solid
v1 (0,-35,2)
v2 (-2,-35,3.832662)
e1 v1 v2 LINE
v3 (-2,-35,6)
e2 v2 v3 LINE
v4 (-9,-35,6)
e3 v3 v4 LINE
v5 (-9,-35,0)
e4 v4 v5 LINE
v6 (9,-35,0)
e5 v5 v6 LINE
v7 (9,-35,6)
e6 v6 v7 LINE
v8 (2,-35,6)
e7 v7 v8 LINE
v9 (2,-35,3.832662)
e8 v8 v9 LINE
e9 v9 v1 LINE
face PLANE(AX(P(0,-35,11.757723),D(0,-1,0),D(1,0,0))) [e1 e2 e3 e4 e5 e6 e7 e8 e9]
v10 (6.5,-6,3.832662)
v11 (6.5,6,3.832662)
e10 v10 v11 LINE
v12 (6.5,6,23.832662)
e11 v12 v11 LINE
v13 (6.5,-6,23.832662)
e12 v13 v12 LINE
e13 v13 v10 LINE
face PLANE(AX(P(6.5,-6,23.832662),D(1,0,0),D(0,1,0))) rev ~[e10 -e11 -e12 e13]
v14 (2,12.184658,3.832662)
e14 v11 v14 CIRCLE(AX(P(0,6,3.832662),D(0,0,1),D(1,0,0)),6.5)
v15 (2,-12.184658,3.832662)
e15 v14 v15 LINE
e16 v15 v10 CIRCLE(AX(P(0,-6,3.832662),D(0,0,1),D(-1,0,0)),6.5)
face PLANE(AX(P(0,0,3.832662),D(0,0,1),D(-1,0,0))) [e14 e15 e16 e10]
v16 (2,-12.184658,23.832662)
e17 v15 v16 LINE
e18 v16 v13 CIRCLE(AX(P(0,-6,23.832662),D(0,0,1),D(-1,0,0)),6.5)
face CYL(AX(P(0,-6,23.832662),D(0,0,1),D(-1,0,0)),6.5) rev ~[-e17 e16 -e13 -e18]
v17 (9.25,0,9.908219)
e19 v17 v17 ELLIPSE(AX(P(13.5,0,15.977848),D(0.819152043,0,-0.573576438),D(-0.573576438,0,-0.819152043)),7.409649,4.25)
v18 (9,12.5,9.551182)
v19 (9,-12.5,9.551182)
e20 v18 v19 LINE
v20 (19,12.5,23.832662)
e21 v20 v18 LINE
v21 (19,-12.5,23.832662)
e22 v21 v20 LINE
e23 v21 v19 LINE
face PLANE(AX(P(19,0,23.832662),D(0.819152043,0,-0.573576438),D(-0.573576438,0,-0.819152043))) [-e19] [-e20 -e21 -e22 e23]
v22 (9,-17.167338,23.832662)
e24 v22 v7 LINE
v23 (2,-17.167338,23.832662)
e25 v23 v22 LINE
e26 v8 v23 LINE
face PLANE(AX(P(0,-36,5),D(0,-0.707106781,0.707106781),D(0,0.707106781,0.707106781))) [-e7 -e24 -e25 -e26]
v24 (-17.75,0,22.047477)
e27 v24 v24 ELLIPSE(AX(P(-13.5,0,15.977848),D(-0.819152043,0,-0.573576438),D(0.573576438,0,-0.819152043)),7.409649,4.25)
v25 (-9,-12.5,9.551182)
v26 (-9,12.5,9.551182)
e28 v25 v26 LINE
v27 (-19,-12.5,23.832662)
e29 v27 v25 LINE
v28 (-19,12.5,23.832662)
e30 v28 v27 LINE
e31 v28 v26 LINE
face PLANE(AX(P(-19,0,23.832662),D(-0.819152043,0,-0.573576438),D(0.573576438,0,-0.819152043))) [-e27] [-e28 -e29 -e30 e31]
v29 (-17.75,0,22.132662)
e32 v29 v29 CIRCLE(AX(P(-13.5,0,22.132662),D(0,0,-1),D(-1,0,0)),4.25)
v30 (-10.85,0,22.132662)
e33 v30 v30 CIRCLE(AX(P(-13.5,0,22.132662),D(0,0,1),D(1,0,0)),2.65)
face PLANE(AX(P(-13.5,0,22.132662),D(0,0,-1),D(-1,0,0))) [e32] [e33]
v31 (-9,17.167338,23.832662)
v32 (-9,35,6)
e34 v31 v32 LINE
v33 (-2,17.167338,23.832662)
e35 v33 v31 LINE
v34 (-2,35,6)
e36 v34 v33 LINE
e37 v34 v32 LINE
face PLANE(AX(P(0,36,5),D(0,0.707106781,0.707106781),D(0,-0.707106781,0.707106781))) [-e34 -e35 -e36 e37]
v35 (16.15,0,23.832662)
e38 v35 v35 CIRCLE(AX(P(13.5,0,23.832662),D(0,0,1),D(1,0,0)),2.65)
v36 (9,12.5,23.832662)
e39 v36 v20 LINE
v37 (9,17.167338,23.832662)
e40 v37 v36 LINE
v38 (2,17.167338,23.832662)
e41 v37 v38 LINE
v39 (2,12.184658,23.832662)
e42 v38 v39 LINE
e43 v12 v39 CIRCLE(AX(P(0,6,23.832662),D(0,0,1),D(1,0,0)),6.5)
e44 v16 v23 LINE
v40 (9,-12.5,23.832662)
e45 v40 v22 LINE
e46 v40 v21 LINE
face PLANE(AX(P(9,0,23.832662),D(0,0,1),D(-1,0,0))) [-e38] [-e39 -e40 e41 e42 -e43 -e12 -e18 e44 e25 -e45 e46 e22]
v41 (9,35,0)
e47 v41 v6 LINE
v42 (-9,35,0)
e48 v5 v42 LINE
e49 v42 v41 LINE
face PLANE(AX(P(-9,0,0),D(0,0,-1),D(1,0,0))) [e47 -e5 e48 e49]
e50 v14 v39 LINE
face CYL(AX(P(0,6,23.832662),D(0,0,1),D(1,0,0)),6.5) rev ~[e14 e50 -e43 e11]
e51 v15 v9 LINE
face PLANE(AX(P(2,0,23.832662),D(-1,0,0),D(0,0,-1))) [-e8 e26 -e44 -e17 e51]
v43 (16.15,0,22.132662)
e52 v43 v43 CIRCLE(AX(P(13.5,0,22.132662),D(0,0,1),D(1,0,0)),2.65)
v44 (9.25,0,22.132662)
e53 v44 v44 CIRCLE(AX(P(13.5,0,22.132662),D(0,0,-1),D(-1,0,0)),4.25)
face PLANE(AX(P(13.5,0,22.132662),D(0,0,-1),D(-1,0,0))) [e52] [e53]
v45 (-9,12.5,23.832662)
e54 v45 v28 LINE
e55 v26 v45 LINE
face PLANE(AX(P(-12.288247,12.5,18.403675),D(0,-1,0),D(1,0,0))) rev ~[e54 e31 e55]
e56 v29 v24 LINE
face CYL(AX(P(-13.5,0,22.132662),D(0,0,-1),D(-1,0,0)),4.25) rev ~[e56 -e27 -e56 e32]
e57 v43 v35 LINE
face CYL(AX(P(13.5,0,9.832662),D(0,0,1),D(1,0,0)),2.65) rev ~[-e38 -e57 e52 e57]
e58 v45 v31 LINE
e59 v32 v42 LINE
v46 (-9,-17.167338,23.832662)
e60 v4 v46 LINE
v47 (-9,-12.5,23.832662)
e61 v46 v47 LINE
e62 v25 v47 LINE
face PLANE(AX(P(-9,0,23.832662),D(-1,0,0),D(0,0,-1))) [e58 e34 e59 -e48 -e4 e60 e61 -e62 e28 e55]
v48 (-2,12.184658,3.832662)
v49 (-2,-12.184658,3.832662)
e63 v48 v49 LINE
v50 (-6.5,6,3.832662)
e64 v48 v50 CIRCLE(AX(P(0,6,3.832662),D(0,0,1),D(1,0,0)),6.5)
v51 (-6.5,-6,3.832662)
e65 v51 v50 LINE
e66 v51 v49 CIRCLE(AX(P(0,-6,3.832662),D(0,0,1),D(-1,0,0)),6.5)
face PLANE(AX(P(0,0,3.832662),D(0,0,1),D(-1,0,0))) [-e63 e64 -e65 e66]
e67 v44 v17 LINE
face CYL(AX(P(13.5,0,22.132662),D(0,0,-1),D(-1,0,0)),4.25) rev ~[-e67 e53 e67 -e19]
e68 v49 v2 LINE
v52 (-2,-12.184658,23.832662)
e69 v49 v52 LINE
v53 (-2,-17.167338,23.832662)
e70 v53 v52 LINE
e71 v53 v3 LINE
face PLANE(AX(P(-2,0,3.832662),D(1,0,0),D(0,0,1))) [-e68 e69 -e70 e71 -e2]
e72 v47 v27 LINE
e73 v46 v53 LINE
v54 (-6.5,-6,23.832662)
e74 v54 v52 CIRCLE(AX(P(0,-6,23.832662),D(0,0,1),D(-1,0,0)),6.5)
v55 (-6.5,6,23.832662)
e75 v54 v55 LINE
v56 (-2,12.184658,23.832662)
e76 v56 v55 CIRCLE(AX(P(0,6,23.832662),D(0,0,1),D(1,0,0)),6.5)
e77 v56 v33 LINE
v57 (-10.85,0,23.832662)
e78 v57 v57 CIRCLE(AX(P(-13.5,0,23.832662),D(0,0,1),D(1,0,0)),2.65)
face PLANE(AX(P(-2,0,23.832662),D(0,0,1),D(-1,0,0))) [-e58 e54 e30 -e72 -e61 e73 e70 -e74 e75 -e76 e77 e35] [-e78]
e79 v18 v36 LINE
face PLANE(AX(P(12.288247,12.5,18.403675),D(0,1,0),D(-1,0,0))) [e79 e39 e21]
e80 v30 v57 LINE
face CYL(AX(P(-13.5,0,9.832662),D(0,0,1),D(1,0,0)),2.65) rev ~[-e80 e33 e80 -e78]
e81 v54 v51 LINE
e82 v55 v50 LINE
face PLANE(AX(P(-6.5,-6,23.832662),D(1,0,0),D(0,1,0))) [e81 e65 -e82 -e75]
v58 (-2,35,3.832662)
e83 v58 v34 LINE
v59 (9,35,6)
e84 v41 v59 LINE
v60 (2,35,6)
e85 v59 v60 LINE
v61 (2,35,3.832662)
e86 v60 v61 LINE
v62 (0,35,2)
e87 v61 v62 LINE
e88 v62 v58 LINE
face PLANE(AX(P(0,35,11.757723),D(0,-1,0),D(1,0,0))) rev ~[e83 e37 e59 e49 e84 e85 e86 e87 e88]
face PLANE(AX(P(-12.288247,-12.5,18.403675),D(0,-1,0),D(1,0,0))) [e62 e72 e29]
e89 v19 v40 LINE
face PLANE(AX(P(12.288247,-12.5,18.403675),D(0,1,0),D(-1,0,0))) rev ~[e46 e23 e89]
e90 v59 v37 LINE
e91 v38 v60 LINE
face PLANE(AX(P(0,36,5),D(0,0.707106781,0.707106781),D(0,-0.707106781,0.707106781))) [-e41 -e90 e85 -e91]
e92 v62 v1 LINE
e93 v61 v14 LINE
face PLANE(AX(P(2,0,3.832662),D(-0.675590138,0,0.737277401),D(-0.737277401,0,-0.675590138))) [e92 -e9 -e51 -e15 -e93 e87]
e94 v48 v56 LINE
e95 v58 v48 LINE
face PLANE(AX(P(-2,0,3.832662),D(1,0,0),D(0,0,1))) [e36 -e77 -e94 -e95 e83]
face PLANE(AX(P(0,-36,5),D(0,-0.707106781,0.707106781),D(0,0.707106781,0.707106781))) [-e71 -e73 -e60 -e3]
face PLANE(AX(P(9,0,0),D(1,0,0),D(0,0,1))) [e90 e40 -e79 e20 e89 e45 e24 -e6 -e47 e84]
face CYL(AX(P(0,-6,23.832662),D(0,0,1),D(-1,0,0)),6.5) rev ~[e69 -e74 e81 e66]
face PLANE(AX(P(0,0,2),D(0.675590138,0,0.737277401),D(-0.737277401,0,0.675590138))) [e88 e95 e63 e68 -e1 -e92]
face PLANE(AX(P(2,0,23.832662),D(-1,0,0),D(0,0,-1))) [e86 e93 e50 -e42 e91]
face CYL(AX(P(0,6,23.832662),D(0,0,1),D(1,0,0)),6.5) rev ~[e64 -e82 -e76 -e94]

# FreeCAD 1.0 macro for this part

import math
import FreeCAD as App
import Part
import Sketcher
Q = App.Units.Quantity


def add_polygon(sketch, points):
    """Adds a closed chain of lines whose ends are joined by coincident constraints."""
    first, n = sketch.GeometryCount, len(points)
    for a, b in zip(points, points[1:] + points[:1]):
        sketch.addGeometry(Part.LineSegment(App.Vector(*a, 0), App.Vector(*b, 0)), False)
    for i in range(n):
        sketch.addConstraint(Sketcher.Constraint("Coincident", first + i, 2, first + (i + 1) % n, 1))

doc = App.newDocument("Part")
body = doc.addObject("PartDesign::Body", "Body")

# Sketch on XZ plane
sketch1 = body.newObject("Sketcher::SketchObject", "Sketch")
sketch1.AttachmentSupport = (doc.getObject("XZ_Plane"), [""])
sketch1.MapMode = "FlatFace"
add_polygon(sketch1, [(-9, 0), (9, 0), (9, 23.8), (2, 23.8), (2, 3.8), (0, 2), (-2, 3.8), (-2, 23.8), (-9, 23.8)])  # lines 0-8
sketch1.addConstraint(Sketcher.Constraint("Horizontal", 0))
sketch1.addConstraint(Sketcher.Constraint("Vertical", 1))
sketch1.addConstraint(Sketcher.Constraint("Horizontal", 2))
sketch1.addConstraint(Sketcher.Constraint("Vertical", 3))
sketch1.addConstraint(Sketcher.Constraint("Vertical", 6))
sketch1.addConstraint(Sketcher.Constraint("Horizontal", 7))
sketch1.addConstraint(Sketcher.Constraint("Vertical", 8))
sketch1.addConstraint(Sketcher.Constraint("Symmetric", 0, 2, 8, 2, -1, 1))
sketch1.addConstraint(Sketcher.Constraint("Symmetric", 3, 2, 5, 2, -2))
sketch1.addConstraint(Sketcher.Constraint("PointOnObject", 4, 2, -2))
sketch1.addConstraint(Sketcher.Constraint("Horizontal", 2, 2, 6, 2))
sketch1.addConstraint(Sketcher.Constraint("DistanceX", 0, 1, 0, 2, Q("18 mm")))
sketch1.addConstraint(Sketcher.Constraint("DistanceX", 2, 2, 2, 1, Q("7 mm")))
sketch1.addConstraint(Sketcher.Constraint("DistanceY", 3, 2, 3, 1, Q("20 mm")))
sketch1.addConstraint(Sketcher.Constraint("DistanceY", -1, 1, 4, 2, Q("2 mm")))
sketch1.addConstraint(Sketcher.Constraint("Angle", 4, Q("-137.500005 deg")))
pad1 = body.newObject("PartDesign::Pad", "Pad")
pad1.Profile = sketch1
pad1.Length = 70
pad1.Midplane = True

# Sketch on XY plane
sketch2 = body.newObject("Sketcher::SketchObject", "Sketch001")
sketch2.AttachmentSupport = (doc.getObject("XY_Plane"), [""])
sketch2.MapMode = "FlatFace"
sketch2.AttachmentOffset = App.Placement(App.Vector(0, 0, 23.832662), App.Rotation())
sketch2.addGeometry(Part.ArcOfCircle(Part.Circle(App.Vector(0, -6, 0), App.Vector(0, 0, 1), 6), math.radians(180), math.radians(360)), False)
sketch2.addGeometry(Part.LineSegment(App.Vector(6, -6, 0), App.Vector(6, 6, 0)), False)
sketch2.addGeometry(Part.ArcOfCircle(Part.Circle(App.Vector(0, 6, 0), App.Vector(0, 0, 1), 6), math.radians(0), math.radians(180)), False)
sketch2.addGeometry(Part.LineSegment(App.Vector(-6, 6, 0), App.Vector(-6, -6, 0)), False)
sketch2.addConstraint(Sketcher.Constraint("Tangent", 0, 2, 1, 1))
sketch2.addConstraint(Sketcher.Constraint("Tangent", 1, 2, 2, 1))
sketch2.addConstraint(Sketcher.Constraint("Tangent", 2, 2, 3, 1))
sketch2.addConstraint(Sketcher.Constraint("Tangent", 3, 2, 0, 1))
sketch2.addConstraint(Sketcher.Constraint("Vertical", 1))
sketch2.addConstraint(Sketcher.Constraint("Vertical", 3))
sketch2.addConstraint(Sketcher.Constraint("Symmetric", 0, 3, 2, 3, -1, 1))
sketch2.addConstraint(Sketcher.Constraint("Radius", 0, Q("6.5 mm")))
sketch2.addConstraint(Sketcher.Constraint("DistanceY", 1, 1, 1, 2, Q("12 mm")))
pocket1 = body.newObject("PartDesign::Pocket", "Pocket")
pocket1.Profile = sketch2
pocket1.Length = 20

# Sketch on XZ plane
sketch3 = body.newObject("Sketcher::SketchObject", "Sketch002")
sketch3.AttachmentSupport = (doc.getObject("XZ_Plane"), [""])
sketch3.MapMode = "FlatFace"
add_polygon(sketch3, [(19, 24), (9, 24), (9, 10)])  # lines 0-2
add_polygon(sketch3, [(-9, 24), (-19, 24), (-9, 10)])  # lines 3-5
sketch3.addConstraint(Sketcher.Constraint("Horizontal", 0))
sketch3.addConstraint(Sketcher.Constraint("Vertical", 1))
sketch3.addConstraint(Sketcher.Constraint("Horizontal", 3))
sketch3.addConstraint(Sketcher.Constraint("Vertical", 5))
sketch3.addConstraint(Sketcher.Constraint("Symmetric", 2, 2, 3, 2, -2))
sketch3.addConstraint(Sketcher.Constraint("Symmetric", 1, 2, 4, 2, -2))
sketch3.addConstraint(Sketcher.Constraint("DistanceX", 0, 2, 0, 1, Q("10 mm")))
sketch3.addConstraint(Sketcher.Constraint("Angle", 2, Q("55 deg")))
sketch3.addConstraint(Sketcher.Constraint("DistanceX", -1, 1, 0, 2, Q("9 mm")))
sketch3.addConstraint(Sketcher.Constraint("DistanceY", -1, 1, 0, 2, Q("23.832662 mm")))
pad2 = body.newObject("PartDesign::Pad", "Pad001")
pad2.Profile = sketch3
pad2.Length = 25
pad2.Midplane = True

# Sketch on XY plane
sketch4 = body.newObject("Sketcher::SketchObject", "Sketch003")
sketch4.AttachmentSupport = (doc.getObject("XY_Plane"), [""])
sketch4.MapMode = "FlatFace"
sketch4.AttachmentOffset = App.Placement(App.Vector(0, 0, 9.832662), App.Rotation())
sketch4.addGeometry(Part.Circle(App.Vector(13.5, 0, 0), App.Vector(0, 0, 1), 2.6), False)
sketch4.addGeometry(Part.Circle(App.Vector(-13.5, 0, 0), App.Vector(0, 0, 1), 2.6), False)
sketch4.addConstraint(Sketcher.Constraint("Equal", 0, 1))
sketch4.addConstraint(Sketcher.Constraint("Symmetric", 0, 3, 1, 3, -1, 1))
sketch4.addConstraint(Sketcher.Constraint("PointOnObject", 0, 3, -1))
sketch4.addConstraint(Sketcher.Constraint("Diameter", 0, Q("5.3 mm")))
sketch4.addConstraint(Sketcher.Constraint("DistanceX", 1, 3, 0, 3, Q("27 mm")))
doc.recompute()
hole = body.newObject("PartDesign::Hole", "Hole")
hole.Profile = sketch4
hole.ThreadType = "None"
hole.Diameter = 5.3
hole.DepthType = "Dimension"
hole.Depth = 25
hole.DrillPoint = "Flat"
hole.HoleCutType = "Counterbore"
hole.HoleCutDiameter = 8.5
hole.HoleCutDepth = 12.3
hole.Reversed = True

# Sketch on YZ plane
sketch5 = body.newObject("Sketcher::SketchObject", "Sketch004")
sketch5.AttachmentSupport = (doc.getObject("YZ_Plane"), [""])
sketch5.MapMode = "FlatFace"
add_polygon(sketch5, [(-36, 25), (-36, 5), (-16, 25)])  # lines 0-2
add_polygon(sketch5, [(36, 25), (16, 25), (36, 5)])  # lines 3-5
sketch5.addConstraint(Sketcher.Constraint("Vertical", 0))
sketch5.addConstraint(Sketcher.Constraint("Horizontal", 2))
sketch5.addConstraint(Sketcher.Constraint("Horizontal", 3))
sketch5.addConstraint(Sketcher.Constraint("Vertical", 5))
sketch5.addConstraint(Sketcher.Constraint("Symmetric", 1, 2, 3, 2, -2))
sketch5.addConstraint(Sketcher.Constraint("Symmetric", 0, 2, 4, 2, -2))
sketch5.addConstraint(Sketcher.Constraint("Perpendicular", 1, 4))
sketch5.addConstraint(Sketcher.Constraint("DistanceX", 2, 2, 2, 1, Q("20 mm")))
sketch5.addConstraint(Sketcher.Constraint("DistanceX", 0, 2, -1, 1, Q("36 mm")))
sketch5.addConstraint(Sketcher.Constraint("DistanceY", -1, 1, 0, 2, Q("5 mm")))
pocket2 = body.newObject("PartDesign::Pocket", "Pocket001")
pocket2.Profile = sketch5
pocket2.Length = 22
pocket2.Midplane = True

doc.recompute()
